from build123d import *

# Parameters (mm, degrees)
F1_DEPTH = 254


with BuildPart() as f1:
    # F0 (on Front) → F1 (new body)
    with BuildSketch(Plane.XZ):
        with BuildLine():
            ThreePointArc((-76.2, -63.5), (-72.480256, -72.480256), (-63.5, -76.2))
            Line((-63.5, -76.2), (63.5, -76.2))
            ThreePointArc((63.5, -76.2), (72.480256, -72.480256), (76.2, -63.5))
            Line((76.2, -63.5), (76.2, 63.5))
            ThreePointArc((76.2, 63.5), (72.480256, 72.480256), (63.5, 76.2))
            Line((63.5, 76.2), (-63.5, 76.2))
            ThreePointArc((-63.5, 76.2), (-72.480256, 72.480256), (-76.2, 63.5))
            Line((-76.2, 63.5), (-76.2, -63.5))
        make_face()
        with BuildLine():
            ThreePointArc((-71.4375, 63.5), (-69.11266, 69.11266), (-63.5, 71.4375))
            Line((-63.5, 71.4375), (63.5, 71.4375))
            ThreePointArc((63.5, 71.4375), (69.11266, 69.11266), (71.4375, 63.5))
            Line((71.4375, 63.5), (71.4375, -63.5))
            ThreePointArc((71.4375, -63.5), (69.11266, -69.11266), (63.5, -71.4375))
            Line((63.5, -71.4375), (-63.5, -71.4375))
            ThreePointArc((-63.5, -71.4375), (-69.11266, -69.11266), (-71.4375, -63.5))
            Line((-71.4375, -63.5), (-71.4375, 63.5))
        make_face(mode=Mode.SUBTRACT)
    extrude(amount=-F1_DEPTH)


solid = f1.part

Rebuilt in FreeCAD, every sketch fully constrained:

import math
import FreeCAD as App
import Part
import Sketcher

V = App.Vector
Q = App.Units.Quantity

doc = App.newDocument("Part")
body = doc.addObject("PartDesign::Body", "Body")

# Sketch on XZ plane
sketch1 = body.newObject("Sketcher::SketchObject", "Sketch")
sketch1.AttachmentSupport = (doc.getObject("XZ_Plane"), [""])
sketch1.MapMode = "FlatFace"
sketch1.addGeometry([
    Part.ArcOfCircle(Part.Circle(V(-63, -63, 0), V(0, 0, 1), 13), math.radians(-180), math.radians(-90)),  # 0
    Part.LineSegment(V(-64, -76, 0), V(64, -76, 0)),  # 1
    Part.ArcOfCircle(Part.Circle(V(63, -63, 0), V(0, 0, 1), 13), math.radians(-90), math.radians(0)),  # 2
    Part.LineSegment(V(76, -64, 0), V(76, 64, 0)),  # 3
    Part.ArcOfCircle(Part.Circle(V(63, 63, 0), V(0, 0, 1), 13), math.radians(0), math.radians(90)),  # 4
    Part.LineSegment(V(64, 76, 0), V(-64, 76, 0)),  # 5
    Part.ArcOfCircle(Part.Circle(V(-63, 63, 0), V(0, 0, 1), 13), math.radians(90), math.radians(180)),  # 6
    Part.LineSegment(V(-76, 64, 0), V(-76, -64, 0)),  # 7
    Part.LineSegment(V(-71, -64, 0), V(-71, 64, 0)),  # 8
    Part.ArcOfCircle(Part.Circle(V(-63, 63, 0), V(0, 0, 1), 8), math.radians(90), math.radians(180)),  # 9
    Part.LineSegment(V(-64, 71, 0), V(64, 71, 0)),  # 10
    Part.ArcOfCircle(Part.Circle(V(63, 63, 0), V(0, 0, 1), 8), math.radians(0), math.radians(90)),  # 11
    Part.LineSegment(V(71, 64, 0), V(71, -64, 0)),  # 12
    Part.ArcOfCircle(Part.Circle(V(63, -63, 0), V(0, 0, 1), 8), math.radians(-90), math.radians(0)),  # 13
    Part.LineSegment(V(64, -71, 0), V(-64, -71, 0)),  # 14
    Part.ArcOfCircle(Part.Circle(V(-63, -63, 0), V(0, 0, 1), 8), math.radians(-180), math.radians(-90)),  # 15
], False)
sketch1.addConstraint([
    Sketcher.Constraint("Tangent", 0, 2, 1, 1),
    Sketcher.Constraint("Tangent", 1, 2, 2, 1),
    Sketcher.Constraint("Tangent", 2, 2, 3, 1),
    Sketcher.Constraint("Tangent", 3, 2, 4, 1),
    Sketcher.Constraint("Tangent", 4, 2, 5, 1),
    Sketcher.Constraint("Tangent", 5, 2, 6, 1),
    Sketcher.Constraint("Tangent", 6, 2, 7, 1),
    Sketcher.Constraint("Tangent", 7, 2, 0, 1),
    Sketcher.Constraint("Tangent", 8, 2, 9, 2),
    Sketcher.Constraint("Tangent", 9, 1, 10, 1),
    Sketcher.Constraint("Tangent", 10, 2, 11, 2),
    Sketcher.Constraint("Tangent", 11, 1, 12, 1),
    Sketcher.Constraint("Tangent", 12, 2, 13, 2),
    Sketcher.Constraint("Tangent", 13, 1, 14, 1),
    Sketcher.Constraint("Tangent", 14, 2, 15, 2),
    Sketcher.Constraint("Tangent", 15, 1, 8, 1),
    Sketcher.Constraint("Horizontal", 1),
    Sketcher.Constraint("Vertical", 3),
    Sketcher.Constraint("Horizontal", 5),
    Sketcher.Constraint("Vertical", 7),
    Sketcher.Constraint("Vertical", 8),
    Sketcher.Constraint("Horizontal", 10),
    Sketcher.Constraint("Vertical", 12),
    Sketcher.Constraint("Horizontal", 14),
    Sketcher.Constraint("Coincident", 9, 3, 6, 3),
    Sketcher.Constraint("Coincident", 11, 3, 4, 3),
    Sketcher.Constraint("Coincident", 13, 3, 2, 3),
    Sketcher.Constraint("Equal", 0, 2),
    Sketcher.Constraint("Equal", 2, 4),
    Sketcher.Constraint("Equal", 4, 6),
    Sketcher.Constraint("Equal", 13, 15),
    Sketcher.Constraint("Symmetric", 0, 3, 4, 3, -1, 1),
    Sketcher.Constraint("Equal", 14, 3),
    Sketcher.Constraint("Radius", 0, Q("0.5 in")),
    Sketcher.Constraint("DistanceX", 1, 1, 1, 2, Q("5 in")),
    Sketcher.Constraint("Radius", 9, Q("0.3125 in")),
])
pad1 = body.newObject("PartDesign::Pad", "Pad")
pad1.Profile = sketch1
pad1.Length = Q("10 in")
pad1.Reversed = True

doc.recompute()
